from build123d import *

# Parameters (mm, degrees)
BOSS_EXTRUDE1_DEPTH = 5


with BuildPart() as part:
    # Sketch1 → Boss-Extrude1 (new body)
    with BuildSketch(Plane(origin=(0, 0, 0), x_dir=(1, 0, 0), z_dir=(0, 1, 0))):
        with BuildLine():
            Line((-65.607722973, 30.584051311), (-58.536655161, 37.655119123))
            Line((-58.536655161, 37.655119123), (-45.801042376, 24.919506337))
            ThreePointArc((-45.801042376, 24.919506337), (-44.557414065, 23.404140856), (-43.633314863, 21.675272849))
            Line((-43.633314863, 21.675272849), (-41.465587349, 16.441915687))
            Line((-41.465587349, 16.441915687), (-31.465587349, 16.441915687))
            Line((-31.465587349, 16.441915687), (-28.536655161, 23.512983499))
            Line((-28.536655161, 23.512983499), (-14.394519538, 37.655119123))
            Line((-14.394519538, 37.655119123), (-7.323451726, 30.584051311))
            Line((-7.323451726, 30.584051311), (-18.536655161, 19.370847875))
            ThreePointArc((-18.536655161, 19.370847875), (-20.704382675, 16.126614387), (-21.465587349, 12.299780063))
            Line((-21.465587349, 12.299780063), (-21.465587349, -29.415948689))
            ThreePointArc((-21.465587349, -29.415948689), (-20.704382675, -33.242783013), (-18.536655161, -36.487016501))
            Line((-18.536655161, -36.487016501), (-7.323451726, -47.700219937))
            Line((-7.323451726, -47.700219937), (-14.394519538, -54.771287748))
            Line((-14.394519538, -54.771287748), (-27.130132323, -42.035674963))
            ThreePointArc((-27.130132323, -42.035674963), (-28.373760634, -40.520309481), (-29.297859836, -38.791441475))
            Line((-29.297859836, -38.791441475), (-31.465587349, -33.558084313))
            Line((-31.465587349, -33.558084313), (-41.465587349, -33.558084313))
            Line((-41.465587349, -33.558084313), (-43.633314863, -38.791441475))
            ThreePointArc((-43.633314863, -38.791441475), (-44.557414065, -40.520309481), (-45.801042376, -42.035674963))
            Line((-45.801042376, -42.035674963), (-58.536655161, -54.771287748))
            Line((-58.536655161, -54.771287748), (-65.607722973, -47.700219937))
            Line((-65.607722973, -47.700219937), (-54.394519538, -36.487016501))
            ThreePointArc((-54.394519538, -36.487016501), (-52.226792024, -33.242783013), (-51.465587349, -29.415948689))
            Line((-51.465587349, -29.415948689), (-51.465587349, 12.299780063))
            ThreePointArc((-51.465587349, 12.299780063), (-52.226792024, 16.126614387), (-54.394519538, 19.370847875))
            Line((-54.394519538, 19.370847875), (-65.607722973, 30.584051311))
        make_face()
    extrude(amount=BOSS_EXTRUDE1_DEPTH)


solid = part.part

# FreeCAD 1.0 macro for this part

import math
import FreeCAD as App
import Part
import Sketcher

V = App.Vector
Q = App.Units.Quantity

doc = App.newDocument("Part")
body = doc.addObject("PartDesign::Body", "Body")

# Sketch on XZ plane
sketch1 = body.newObject("Sketcher::SketchObject", "Sketch")
sketch1.AttachmentSupport = (doc.getObject("XZ_Plane"), [""])
sketch1.MapMode = "FlatFace"
sketch1.addGeometry(Part.LineSegment(V(-58.5, -37.7, 0), V(-65.6, -30.6, 0)), False)
sketch1.addGeometry(Part.LineSegment(V(-65.6, -30.6, 0), V(-54.4, -19.4, 0)), False)
sketch1.addGeometry(Part.ArcOfCircle(Part.Circle(V(-61.5, -12.3, 0), V(0, 0, 1), 10), math.radians(-45), math.radians(0)), False)
sketch1.addGeometry(Part.LineSegment(V(-51.5, -12.3, 0), V(-51.5, 29.4, 0)), False)
sketch1.addGeometry(Part.ArcOfCircle(Part.Circle(V(-61.5, 29.4, 0), V(0, 0, 1), 10), math.radians(0), math.radians(45)), False)
sketch1.addGeometry(Part.LineSegment(V(-54.4, 36.5, 0), V(-65.6, 47.7, 0)), False)
sketch1.addGeometry(Part.LineSegment(V(-65.6, 47.7, 0), V(-58.5, 54.8, 0)), False)
sketch1.addGeometry(Part.LineSegment(V(-58.5, 54.8, 0), V(-45.8, 42, 0)), False)
sketch1.addGeometry(Part.ArcOfCircle(Part.Circle(V(-52.9, 35, 0), V(0, 0, 1), 10), math.radians(23), math.radians(45)), False)
sketch1.addGeometry(Part.LineSegment(V(-43.6, 38.8, 0), V(-41.5, 33.6, 0)), False)
sketch1.addGeometry(Part.LineSegment(V(-41.5, 33.6, 0), V(-31.5, 33.6, 0)), False)
sketch1.addGeometry(Part.LineSegment(V(-31.5, 33.6, 0), V(-29.3, 38.8, 0)), False)
sketch1.addGeometry(Part.ArcOfCircle(Part.Circle(V(-20.1, 35, 0), V(0, 0, 1), 10), math.radians(135), math.radians(157)), False)
sketch1.addGeometry(Part.LineSegment(V(-27.1, 42, 0), V(-14.4, 54.8, 0)), False)
sketch1.addGeometry(Part.LineSegment(V(-14.4, 54.8, 0), V(-7.3, 47.7, 0)), False)
sketch1.addGeometry(Part.LineSegment(V(-7.3, 47.7, 0), V(-18.5, 36.5, 0)), False)
sketch1.addGeometry(Part.ArcOfCircle(Part.Circle(V(-11.5, 29.4, 0), V(0, 0, 1), 10), math.radians(135), math.radians(180)), False)
sketch1.addGeometry(Part.LineSegment(V(-21.5, 29.4, 0), V(-21.5, -12.3, 0)), False)
sketch1.addGeometry(Part.ArcOfCircle(Part.Circle(V(-11.5, -12.3, 0), V(0, 0, 1), 10), math.radians(180), math.radians(225)), False)
sketch1.addGeometry(Part.LineSegment(V(-18.5, -19.4, 0), V(-7.3, -30.6, 0)), False)
sketch1.addGeometry(Part.LineSegment(V(-7.3, -30.6, 0), V(-14.4, -37.7, 0)), False)
sketch1.addGeometry(Part.LineSegment(V(-14.4, -37.7, 0), V(-28.5, -23.5, 0)), False)
sketch1.addGeometry(Part.LineSegment(V(-28.5, -23.5, 0), V(-31.5, -16.4, 0)), False)
sketch1.addGeometry(Part.LineSegment(V(-31.5, -16.4, 0), V(-41.5, -16.4, 0)), False)
sketch1.addGeometry(Part.LineSegment(V(-41.5, -16.4, 0), V(-43.6, -21.7, 0)), False)
sketch1.addGeometry(Part.ArcOfCircle(Part.Circle(V(-52.9, -17.8, 0), V(0, 0, 1), 10), math.radians(-45), math.radians(-22)), False)
sketch1.addGeometry(Part.LineSegment(V(-45.8, -24.9, 0), V(-58.5, -37.7, 0)), False)
sketch1.addConstraint(Sketcher.Constraint("Coincident", 0, 2, 1, 1))
sketch1.addConstraint(Sketcher.Constraint("Tangent", 1, 2, 2, 1))
sketch1.addConstraint(Sketcher.Constraint("Tangent", 2, 2, 3, 1))
sketch1.addConstraint(Sketcher.Constraint("Tangent", 3, 2, 4, 1))
sketch1.addConstraint(Sketcher.Constraint("Tangent", 4, 2, 5, 1))
sketch1.addConstraint(Sketcher.Constraint("Coincident", 5, 2, 6, 1))
sketch1.addConstraint(Sketcher.Constraint("Coincident", 6, 2, 7, 1))
sketch1.addConstraint(Sketcher.Constraint("Tangent", 7, 2, 8, 2))
sketch1.addConstraint(Sketcher.Constraint("Tangent", 8, 1, 9, 1))
sketch1.addConstraint(Sketcher.Constraint("Coincident", 9, 2, 10, 1))
sketch1.addConstraint(Sketcher.Constraint("Coincident", 10, 2, 11, 1))
sketch1.addConstraint(Sketcher.Constraint("Tangent", 11, 2, 12, 2))
sketch1.addConstraint(Sketcher.Constraint("Tangent", 12, 1, 13, 1))
sketch1.addConstraint(Sketcher.Constraint("Coincident", 13, 2, 14, 1))
sketch1.addConstraint(Sketcher.Constraint("Coincident", 14, 2, 15, 1))
sketch1.addConstraint(Sketcher.Constraint("Tangent", 15, 2, 16, 1))
sketch1.addConstraint(Sketcher.Constraint("Tangent", 16, 2, 17, 1))
sketch1.addConstraint(Sketcher.Constraint("Tangent", 17, 2, 18, 1))
sketch1.addConstraint(Sketcher.Constraint("Tangent", 18, 2, 19, 1))
sketch1.addConstraint(Sketcher.Constraint("Coincident", 19, 2, 20, 1))
sketch1.addConstraint(Sketcher.Constraint("Coincident", 20, 2, 21, 1))
sketch1.addConstraint(Sketcher.Constraint("Coincident", 21, 2, 22, 1))
sketch1.addConstraint(Sketcher.Constraint("Coincident", 22, 2, 23, 1))
sketch1.addConstraint(Sketcher.Constraint("Coincident", 23, 2, 24, 1))
sketch1.addConstraint(Sketcher.Constraint("Tangent", 24, 2, 25, 2))
sketch1.addConstraint(Sketcher.Constraint("Tangent", 25, 1, 26, 1))
sketch1.addConstraint(Sketcher.Constraint("Coincident", 26, 2, 0, 1))
sketch1.addConstraint(Sketcher.Constraint("Vertical", 3))
sketch1.addConstraint(Sketcher.Constraint("Horizontal", 10))
sketch1.addConstraint(Sketcher.Constraint("Vertical", 17))
sketch1.addConstraint(Sketcher.Constraint("Horizontal", 23))
sketch1.addConstraint(Sketcher.Constraint("Equal", 2, 4))
sketch1.addConstraint(Sketcher.Constraint("Equal", 4, 8))
sketch1.addConstraint(Sketcher.Constraint("Equal", 8, 12))
sketch1.addConstraint(Sketcher.Constraint("Equal", 12, 16))
sketch1.addConstraint(Sketcher.Constraint("Equal", 16, 18))
sketch1.addConstraint(Sketcher.Constraint("Equal", 18, 25))
sketch1.addConstraint(Sketcher.Constraint("Perpendicular", 0, 1))
sketch1.addConstraint(Sketcher.Constraint("Perpendicular", 1, 5))
sketch1.addConstraint(Sketcher.Constraint("Perpendicular", 5, 6))
sketch1.addConstraint(Sketcher.Constraint("Perpendicular", 6, 7))
sketch1.addConstraint(Sketcher.Constraint("Perpendicular", 7, 13))
sketch1.addConstraint(Sketcher.Constraint("Perpendicular", 13, 14))
sketch1.addConstraint(Sketcher.Constraint("Perpendicular", 14, 15))
sketch1.addConstraint(Sketcher.Constraint("Perpendicular", 15, 19))
sketch1.addConstraint(Sketcher.Constraint("Perpendicular", 19, 20))
sketch1.addConstraint(Sketcher.Constraint("Perpendicular", 20, 21))
sketch1.addConstraint(Sketcher.Constraint("Parallel", 9, 22))
sketch1.addConstraint(Sketcher.Constraint("Parallel", 11, 24))
sketch1.addConstraint(Sketcher.Constraint("Perpendicular", 21, 26))
sketch1.addConstraint(Sketcher.Constraint("Horizontal", 8, 3, 12, 3))
sketch1.addConstraint(Sketcher.Constraint("Horizontal", 4, 3, 16, 3))
sketch1.addConstraint(Sketcher.Constraint("Horizontal", 2, 3, 18, 3))
sketch1.addConstraint(Sketcher.Constraint("Horizontal", 8, 1, 11, 2))
sketch1.addConstraint(Sketcher.Constraint("Horizontal", 7, 2, 12, 1))
sketch1.addConstraint(Sketcher.Constraint("Horizontal", 6, 2, 13, 2))
sketch1.addConstraint(Sketcher.Constraint("Horizontal", 5, 2, 14, 2))
sketch1.addConstraint(Sketcher.Constraint("Horizontal", 0, 2, 19, 2))
sketch1.addConstraint(Sketcher.Constraint("Horizontal", 20, 2, 26, 2))
sketch1.addConstraint(Sketcher.Constraint("Vertical", 8, 3, 25, 3))
sketch1.addConstraint(Sketcher.Constraint("Vertical", 0, 2, 5, 2))
sketch1.addConstraint(Sketcher.Constraint("Vertical", 13, 2, 20, 2))
sketch1.addConstraint(Sketcher.Constraint("Vertical", 10, 2, 22, 2))
sketch1.addConstraint(Sketcher.Constraint("Vertical", 9, 2, 23, 2))
sketch1.addConstraint(Sketcher.Constraint("Radius", 2, Q("10 mm")))
sketch1.addConstraint(Sketcher.Constraint("DistanceX", 10, 1, 10, 2, Q("10 mm")))
sketch1.addConstraint(Sketcher.Constraint("Distance", 0, Q("10 mm")))
sketch1.addConstraint(Sketcher.Constraint("Distance", 21, Q("20 mm")))
sketch1.addConstraint(Sketcher.Constraint("Angle", 9, Q("-67.5 deg")))
sketch1.addConstraint(Sketcher.Constraint("DistanceX", 4, 3, 16, 3, Q("50 mm")))
sketch1.addConstraint(Sketcher.Constraint("DistanceY", 0, 2, 4, 3, Q("60 mm")))
sketch1.addConstraint(Sketcher.Constraint("DistanceX", 21, 2, 18, 2, Q("10 mm")))
sketch1.addConstraint(Sketcher.Constraint("DistanceY", 2, 3, -1, 1, Q("12.29978 mm")))
sketch1.addConstraint(Sketcher.Constraint("DistanceX", 8, 3, -1, 1, Q("52.87211 mm")))
pad1 = body.newObject("PartDesign::Pad", "Pad")
pad1.Profile = sketch1
pad1.Length = 5
pad1.Reversed = True

doc.recompute()
